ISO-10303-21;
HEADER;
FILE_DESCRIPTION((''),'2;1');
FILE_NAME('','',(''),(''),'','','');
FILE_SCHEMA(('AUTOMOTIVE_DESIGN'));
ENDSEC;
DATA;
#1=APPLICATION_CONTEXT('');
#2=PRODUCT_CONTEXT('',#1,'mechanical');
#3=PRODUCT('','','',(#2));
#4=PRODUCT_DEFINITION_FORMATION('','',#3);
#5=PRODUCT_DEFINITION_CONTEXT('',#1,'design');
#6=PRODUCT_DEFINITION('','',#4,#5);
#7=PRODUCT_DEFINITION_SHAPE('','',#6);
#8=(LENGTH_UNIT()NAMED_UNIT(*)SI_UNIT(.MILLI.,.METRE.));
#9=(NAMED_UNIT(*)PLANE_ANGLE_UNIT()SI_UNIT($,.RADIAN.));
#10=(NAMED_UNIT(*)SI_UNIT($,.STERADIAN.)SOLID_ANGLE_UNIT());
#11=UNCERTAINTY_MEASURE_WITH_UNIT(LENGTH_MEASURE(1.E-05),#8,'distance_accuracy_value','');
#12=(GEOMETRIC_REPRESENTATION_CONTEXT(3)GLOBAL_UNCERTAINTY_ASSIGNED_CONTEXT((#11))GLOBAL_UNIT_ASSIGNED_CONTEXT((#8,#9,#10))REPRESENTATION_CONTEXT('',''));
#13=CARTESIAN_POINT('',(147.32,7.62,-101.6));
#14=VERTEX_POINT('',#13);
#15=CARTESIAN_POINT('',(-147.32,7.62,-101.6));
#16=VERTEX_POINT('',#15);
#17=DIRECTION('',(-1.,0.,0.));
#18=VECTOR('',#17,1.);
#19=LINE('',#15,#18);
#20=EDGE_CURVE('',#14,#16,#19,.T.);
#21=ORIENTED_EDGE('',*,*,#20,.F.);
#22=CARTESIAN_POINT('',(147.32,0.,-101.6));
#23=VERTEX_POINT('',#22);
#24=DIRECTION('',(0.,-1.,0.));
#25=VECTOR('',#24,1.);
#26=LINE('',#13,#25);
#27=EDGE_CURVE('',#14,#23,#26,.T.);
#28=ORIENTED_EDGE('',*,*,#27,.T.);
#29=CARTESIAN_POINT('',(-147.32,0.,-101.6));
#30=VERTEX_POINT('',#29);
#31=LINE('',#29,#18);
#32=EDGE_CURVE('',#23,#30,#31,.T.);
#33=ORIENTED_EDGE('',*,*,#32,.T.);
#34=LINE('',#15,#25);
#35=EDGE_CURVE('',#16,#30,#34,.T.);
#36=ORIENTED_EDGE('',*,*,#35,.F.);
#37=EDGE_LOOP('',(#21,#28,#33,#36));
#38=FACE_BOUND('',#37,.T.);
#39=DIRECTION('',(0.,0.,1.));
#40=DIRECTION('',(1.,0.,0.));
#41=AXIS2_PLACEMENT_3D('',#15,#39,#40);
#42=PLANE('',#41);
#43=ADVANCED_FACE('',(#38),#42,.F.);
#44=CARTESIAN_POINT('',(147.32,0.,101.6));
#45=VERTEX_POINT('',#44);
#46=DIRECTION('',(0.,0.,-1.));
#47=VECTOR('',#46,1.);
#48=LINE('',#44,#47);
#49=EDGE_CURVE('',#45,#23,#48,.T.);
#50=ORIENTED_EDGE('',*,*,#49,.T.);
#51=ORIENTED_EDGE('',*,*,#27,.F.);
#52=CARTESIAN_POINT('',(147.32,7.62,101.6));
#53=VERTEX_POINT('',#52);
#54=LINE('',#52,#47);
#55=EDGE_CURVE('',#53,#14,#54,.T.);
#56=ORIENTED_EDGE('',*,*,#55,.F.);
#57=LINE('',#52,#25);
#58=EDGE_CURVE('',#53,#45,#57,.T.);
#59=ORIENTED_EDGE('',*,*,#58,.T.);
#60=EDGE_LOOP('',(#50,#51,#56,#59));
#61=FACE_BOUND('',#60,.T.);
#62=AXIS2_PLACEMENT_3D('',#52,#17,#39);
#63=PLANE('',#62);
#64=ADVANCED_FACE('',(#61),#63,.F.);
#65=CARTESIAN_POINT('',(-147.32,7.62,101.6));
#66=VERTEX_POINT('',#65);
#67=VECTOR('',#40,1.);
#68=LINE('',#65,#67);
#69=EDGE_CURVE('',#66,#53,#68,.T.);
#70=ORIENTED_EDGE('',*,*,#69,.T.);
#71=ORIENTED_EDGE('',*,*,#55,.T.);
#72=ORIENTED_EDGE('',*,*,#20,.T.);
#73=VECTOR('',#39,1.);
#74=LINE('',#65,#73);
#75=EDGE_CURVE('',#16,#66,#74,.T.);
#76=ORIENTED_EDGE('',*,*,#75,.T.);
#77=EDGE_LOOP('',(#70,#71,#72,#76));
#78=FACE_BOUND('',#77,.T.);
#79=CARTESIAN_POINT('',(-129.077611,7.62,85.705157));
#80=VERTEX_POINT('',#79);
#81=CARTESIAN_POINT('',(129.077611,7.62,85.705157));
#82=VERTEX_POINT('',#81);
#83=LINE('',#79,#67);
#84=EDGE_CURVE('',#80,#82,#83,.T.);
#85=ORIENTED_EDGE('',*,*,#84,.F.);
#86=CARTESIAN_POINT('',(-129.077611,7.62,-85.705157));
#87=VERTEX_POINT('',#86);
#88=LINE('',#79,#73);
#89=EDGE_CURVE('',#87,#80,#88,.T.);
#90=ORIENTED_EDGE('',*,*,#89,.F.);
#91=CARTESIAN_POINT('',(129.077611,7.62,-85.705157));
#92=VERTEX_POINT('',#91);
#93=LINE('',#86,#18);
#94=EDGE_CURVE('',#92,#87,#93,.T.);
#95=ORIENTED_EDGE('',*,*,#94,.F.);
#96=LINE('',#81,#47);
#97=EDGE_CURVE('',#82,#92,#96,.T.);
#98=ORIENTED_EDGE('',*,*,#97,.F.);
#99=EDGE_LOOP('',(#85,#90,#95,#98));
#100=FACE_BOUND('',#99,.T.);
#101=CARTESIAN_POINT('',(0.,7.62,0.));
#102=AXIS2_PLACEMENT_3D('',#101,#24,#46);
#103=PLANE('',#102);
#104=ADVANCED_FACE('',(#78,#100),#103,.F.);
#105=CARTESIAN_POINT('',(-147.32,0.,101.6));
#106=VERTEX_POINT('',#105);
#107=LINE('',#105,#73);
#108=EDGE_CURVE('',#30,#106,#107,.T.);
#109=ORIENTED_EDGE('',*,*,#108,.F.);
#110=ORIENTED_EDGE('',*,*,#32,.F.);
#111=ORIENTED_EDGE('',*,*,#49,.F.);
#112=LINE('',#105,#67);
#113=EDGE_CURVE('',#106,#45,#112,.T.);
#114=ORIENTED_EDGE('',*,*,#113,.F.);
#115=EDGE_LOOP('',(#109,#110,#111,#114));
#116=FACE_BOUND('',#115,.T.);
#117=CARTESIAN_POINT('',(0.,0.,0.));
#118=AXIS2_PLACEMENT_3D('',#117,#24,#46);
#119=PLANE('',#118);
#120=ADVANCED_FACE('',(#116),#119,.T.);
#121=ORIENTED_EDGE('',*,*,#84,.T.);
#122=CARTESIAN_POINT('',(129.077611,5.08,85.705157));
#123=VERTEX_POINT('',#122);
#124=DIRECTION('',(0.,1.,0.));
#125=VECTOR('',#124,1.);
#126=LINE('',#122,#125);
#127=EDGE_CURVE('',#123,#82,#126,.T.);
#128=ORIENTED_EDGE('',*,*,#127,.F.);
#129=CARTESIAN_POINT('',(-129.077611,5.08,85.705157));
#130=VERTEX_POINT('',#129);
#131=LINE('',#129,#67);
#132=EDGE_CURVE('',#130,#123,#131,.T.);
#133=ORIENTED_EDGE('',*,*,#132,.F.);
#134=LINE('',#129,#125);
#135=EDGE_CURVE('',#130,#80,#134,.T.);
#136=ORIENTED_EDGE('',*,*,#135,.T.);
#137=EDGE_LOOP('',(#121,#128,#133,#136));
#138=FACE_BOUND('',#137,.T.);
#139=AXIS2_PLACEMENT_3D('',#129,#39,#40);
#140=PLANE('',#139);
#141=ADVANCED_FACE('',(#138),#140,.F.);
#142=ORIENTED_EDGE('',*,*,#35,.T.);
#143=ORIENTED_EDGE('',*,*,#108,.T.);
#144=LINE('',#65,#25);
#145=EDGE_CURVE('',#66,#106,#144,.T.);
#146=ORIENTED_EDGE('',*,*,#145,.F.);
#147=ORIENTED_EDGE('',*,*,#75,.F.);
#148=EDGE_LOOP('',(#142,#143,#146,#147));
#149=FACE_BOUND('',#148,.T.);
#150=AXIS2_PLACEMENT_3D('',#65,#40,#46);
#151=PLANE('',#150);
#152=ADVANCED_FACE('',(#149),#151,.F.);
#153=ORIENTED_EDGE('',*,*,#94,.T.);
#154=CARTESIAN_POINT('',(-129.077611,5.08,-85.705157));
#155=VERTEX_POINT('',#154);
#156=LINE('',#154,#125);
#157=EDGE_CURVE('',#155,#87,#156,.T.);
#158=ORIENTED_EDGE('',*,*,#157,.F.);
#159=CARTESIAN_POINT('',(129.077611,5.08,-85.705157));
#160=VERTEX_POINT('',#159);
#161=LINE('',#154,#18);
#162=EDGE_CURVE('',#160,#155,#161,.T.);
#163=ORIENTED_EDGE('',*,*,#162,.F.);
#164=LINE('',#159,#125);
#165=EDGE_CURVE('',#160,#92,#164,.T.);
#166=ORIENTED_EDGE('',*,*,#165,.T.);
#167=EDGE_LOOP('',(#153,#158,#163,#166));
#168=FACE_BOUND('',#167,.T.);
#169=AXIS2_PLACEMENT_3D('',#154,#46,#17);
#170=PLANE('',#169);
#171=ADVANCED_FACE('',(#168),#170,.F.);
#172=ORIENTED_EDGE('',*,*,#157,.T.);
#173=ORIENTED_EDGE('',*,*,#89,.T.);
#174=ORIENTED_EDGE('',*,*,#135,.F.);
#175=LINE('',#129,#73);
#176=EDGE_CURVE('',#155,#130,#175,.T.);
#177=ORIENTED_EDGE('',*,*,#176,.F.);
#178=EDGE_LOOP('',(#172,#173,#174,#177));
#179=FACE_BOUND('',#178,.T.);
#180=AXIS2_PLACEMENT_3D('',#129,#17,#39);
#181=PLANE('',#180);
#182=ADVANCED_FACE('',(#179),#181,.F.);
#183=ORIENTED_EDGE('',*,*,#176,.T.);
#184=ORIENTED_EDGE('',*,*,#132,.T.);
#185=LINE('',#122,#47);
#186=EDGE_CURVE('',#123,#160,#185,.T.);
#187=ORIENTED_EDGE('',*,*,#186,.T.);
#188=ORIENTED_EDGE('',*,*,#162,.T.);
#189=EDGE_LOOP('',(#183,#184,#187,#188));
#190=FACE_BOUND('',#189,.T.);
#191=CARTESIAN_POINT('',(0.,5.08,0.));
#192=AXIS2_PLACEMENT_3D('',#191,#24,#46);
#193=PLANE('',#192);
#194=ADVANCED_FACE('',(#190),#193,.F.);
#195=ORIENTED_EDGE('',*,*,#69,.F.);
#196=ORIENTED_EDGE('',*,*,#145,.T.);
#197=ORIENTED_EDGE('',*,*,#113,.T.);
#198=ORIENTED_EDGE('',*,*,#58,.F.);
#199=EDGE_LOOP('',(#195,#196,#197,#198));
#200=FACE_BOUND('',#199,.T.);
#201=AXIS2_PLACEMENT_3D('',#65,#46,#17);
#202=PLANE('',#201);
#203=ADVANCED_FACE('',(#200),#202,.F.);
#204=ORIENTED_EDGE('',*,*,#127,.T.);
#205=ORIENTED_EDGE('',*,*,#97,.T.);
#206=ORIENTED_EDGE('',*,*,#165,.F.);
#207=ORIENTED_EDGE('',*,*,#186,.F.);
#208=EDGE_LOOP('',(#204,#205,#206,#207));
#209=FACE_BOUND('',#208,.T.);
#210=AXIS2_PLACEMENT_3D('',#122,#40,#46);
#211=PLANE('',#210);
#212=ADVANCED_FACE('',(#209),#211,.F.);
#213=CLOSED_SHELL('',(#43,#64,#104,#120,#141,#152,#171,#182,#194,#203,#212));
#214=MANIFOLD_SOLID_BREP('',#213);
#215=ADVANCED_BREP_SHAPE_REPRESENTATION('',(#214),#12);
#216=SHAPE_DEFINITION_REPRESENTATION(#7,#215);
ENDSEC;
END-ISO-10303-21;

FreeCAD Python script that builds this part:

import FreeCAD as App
import Part
import Sketcher

V = App.Vector
Q = App.Units.Quantity


def add_polygon(sketch, points):
    """Adds a closed chain of lines whose ends are joined by coincident constraints."""
    first, n = sketch.GeometryCount, len(points)
    for a, b in zip(points, points[1:] + points[:1]):
        sketch.addGeometry(Part.LineSegment(App.Vector(*a, 0), App.Vector(*b, 0)), False)
    for i in range(n):
        sketch.addConstraint(Sketcher.Constraint("Coincident", first + i, 2, first + (i + 1) % n, 1))

doc = App.newDocument("Part")
body = doc.addObject("PartDesign::Body", "Body")

sketch1 = body.newObject("Sketcher::SketchObject", "Sketch")
sketch1.AttachmentSupport = (doc.getObject("XZ_Plane"), [""])
sketch1.MapMode = "FlatFace"
add_polygon(sketch1, [(-147, -102), (-147, 102), (147, 102), (147, -102)])
sketch1.addConstraint([
    Sketcher.Constraint("Vertical", 0),
    Sketcher.Constraint("Horizontal", 1),
    Sketcher.Constraint("Vertical", 2),
    Sketcher.Constraint("Horizontal", 3),
    Sketcher.Constraint("Symmetric", 0, 2, 2, 2, -1, 1),
    Sketcher.Constraint("DistanceY", 0, 1, 0, 2, Q("8 in")),
    Sketcher.Constraint("DistanceX", 1, 1, 1, 2, Q("11.6 in")),
])
pad1 = body.newObject("PartDesign::Pad", "Pad")
pad1.Profile = sketch1
pad1.Length = Q("0.3 in")
pad1.Reversed = True

sketch2 = body.newObject("Sketcher::SketchObject", "Sketch001")
sketch2.AttachmentSupport = (doc.getObject("XZ_Plane"), [""])
sketch2.MapMode = "FlatFace"
sketch2.AttachmentOffset = App.Placement(V(0, 0, -0.3 * 25.4), App.Rotation())
add_polygon(sketch2, [(-129, -86), (-129, 86), (129, 86), (129, -86)])
sketch2.addConstraint([
    Sketcher.Constraint("Vertical", 0),
    Sketcher.Constraint("Horizontal", 1),
    Sketcher.Constraint("Vertical", 2),
    Sketcher.Constraint("Horizontal", 3),
    Sketcher.Constraint("Symmetric", 0, 2, 2, 2, -1, 1),
    Sketcher.Constraint("DistanceX", 1, 1, 1, 2, Q("258.155222 mm")),
    Sketcher.Constraint("DistanceY", 0, 1, 0, 2, Q("171.410314 mm")),
])
pocket1 = body.newObject("PartDesign::Pocket", "Pocket")
pocket1.Profile = sketch2
pocket1.Length = Q("0.1 in")
pocket1.Reversed = True

doc.recompute()
